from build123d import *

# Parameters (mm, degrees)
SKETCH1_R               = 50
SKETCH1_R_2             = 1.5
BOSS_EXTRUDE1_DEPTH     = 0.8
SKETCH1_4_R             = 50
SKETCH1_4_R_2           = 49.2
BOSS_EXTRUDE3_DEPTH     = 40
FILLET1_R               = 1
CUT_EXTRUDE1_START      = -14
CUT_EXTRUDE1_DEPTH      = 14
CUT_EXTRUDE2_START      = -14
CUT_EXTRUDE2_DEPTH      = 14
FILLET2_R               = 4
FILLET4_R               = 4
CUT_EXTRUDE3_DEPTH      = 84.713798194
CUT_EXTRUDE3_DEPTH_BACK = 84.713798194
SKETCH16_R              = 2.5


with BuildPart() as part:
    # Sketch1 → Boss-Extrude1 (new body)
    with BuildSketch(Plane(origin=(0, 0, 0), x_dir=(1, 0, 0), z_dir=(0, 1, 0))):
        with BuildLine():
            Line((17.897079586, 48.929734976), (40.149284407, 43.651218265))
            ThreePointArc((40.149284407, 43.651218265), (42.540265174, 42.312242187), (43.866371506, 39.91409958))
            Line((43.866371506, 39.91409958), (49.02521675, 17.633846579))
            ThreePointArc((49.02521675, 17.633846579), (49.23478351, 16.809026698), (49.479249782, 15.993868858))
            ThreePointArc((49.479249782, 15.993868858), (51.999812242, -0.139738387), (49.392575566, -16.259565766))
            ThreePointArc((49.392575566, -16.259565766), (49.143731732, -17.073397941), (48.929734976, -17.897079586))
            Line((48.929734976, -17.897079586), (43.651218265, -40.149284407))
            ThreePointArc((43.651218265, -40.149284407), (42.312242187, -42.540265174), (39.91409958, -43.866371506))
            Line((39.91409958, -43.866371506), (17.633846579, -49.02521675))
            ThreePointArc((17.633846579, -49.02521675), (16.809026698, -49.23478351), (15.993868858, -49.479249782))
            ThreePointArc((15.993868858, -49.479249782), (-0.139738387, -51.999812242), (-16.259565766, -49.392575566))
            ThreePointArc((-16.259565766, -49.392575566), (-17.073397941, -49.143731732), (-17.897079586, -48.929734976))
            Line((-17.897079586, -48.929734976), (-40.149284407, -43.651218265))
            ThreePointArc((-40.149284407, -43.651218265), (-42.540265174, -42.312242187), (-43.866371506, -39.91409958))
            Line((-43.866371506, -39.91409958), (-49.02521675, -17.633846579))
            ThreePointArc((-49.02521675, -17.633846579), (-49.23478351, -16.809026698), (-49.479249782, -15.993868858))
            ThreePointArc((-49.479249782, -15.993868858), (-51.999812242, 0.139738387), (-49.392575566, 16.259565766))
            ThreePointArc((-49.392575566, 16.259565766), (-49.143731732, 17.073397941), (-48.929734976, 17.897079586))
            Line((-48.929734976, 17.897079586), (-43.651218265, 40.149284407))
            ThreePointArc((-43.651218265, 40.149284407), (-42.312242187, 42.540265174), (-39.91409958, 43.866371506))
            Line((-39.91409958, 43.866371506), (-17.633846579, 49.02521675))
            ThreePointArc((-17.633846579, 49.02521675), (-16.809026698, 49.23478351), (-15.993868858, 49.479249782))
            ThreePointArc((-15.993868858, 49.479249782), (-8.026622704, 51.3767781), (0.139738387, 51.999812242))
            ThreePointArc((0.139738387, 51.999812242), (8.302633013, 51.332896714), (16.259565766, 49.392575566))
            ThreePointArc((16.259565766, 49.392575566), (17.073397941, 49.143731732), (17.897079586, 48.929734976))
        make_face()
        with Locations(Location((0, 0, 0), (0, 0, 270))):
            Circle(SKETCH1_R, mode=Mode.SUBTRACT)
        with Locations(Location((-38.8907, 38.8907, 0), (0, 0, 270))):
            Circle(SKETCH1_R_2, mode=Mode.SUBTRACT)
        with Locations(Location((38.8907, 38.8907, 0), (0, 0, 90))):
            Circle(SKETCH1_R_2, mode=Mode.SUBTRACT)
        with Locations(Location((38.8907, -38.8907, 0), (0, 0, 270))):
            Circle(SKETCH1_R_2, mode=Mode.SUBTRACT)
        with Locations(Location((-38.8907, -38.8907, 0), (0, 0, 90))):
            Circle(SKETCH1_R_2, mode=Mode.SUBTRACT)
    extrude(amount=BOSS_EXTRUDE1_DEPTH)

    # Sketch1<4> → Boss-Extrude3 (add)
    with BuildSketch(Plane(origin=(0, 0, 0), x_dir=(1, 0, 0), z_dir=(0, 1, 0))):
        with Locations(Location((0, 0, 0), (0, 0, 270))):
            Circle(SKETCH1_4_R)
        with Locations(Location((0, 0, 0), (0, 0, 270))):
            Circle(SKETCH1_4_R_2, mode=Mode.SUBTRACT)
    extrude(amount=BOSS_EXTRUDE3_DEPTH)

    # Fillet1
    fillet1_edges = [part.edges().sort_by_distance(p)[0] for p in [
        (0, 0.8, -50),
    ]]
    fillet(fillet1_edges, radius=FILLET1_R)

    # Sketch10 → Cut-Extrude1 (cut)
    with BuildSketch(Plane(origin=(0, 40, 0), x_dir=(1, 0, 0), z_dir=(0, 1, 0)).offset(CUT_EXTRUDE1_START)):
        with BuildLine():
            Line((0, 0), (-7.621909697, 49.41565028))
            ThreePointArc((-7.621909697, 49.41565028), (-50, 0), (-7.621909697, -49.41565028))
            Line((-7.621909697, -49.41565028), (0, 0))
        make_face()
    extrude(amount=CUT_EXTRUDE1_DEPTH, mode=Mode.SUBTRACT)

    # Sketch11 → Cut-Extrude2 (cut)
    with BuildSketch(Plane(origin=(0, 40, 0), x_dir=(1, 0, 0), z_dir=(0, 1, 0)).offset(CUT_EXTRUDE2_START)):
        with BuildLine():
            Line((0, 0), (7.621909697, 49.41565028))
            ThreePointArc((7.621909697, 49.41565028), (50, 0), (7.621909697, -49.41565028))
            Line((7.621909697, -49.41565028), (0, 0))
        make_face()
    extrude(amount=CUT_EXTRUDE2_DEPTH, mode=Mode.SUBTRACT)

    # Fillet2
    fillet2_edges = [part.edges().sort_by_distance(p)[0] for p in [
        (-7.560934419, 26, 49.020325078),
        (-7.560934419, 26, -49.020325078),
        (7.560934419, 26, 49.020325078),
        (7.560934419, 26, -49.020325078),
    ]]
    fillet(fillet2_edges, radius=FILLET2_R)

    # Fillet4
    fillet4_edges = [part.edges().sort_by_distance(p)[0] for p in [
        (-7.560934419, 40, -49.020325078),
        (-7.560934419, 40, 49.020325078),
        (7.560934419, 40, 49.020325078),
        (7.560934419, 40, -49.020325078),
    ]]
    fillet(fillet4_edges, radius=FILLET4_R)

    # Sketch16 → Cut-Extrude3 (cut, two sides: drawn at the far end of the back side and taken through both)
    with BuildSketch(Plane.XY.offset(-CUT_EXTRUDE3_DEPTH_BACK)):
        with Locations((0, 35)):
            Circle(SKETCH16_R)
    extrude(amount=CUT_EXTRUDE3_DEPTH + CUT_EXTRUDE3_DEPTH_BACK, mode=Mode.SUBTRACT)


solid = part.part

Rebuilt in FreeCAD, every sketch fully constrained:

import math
import FreeCAD as App
import Part
import Sketcher
from FreeCAD import Vector


def edges_at(feature, points):
    """Names of the edges that pass closest to the given points."""
    edges = feature.Shape.Edges
    near = lambda p: min(range(len(edges)), key=lambda i: edges[i].distToShape(Part.Vertex(*p))[0])
    return sorted({f"Edge{near(p) + 1}" for p in points})

doc = App.newDocument("Part")
params = doc.addObject("Spreadsheet::Sheet", "Params")
for row, (alias, value) in enumerate([
    ("sketch1_diameter", "3 mm"),
    ("sketch1_diameter2", "100 mm"),
    ("sketch1_radius", "20 mm"),
    ("sketch1_radius2", "52 mm"),
    ("sketch1_radius3", "5 mm"),
    ("pad1_length", "0.8 mm"),
    ("sketch2_diameter", "100 mm"),
    ("sketch2_diameter2", "98.4 mm"),
    ("pad2_length", "40 mm"),
    ("fillet_radius", "1 mm"),
    ("sketch3_radius", "50 mm"),
    ("pocket1_length", "14 mm"),
    ("sketch4_radius", "50 mm"),
    ("pocket2_length", "14 mm"),
    ("fillet2_radius", "4 mm"),
    ("fillet3_radius", "4 mm"),
    ("sketch5_diameter", "5 mm"),
], start=1):
    params.set(f"A{row}", alias)
    params.set(f"B{row}", "=" + value)
    params.setAlias(f"B{row}", alias)

body = doc.addObject("PartDesign::Body", "Body")

# Sketch on XZ plane
sketch1 = body.newObject("Sketcher::SketchObject", "Sketch")
sketch1.AttachmentSupport = (doc.getObject("XZ_Plane"), [""])
sketch1.MapMode = "FlatFace"
sketch1.addGeometry(Part.LineSegment(Vector(40.1, -43.7, 0), Vector(17.9, -48.9, 0)), False)
sketch1.addGeometry(Part.ArcOfCircle(Part.Circle(Vector(22.5, -68.4, 0), Vector(0, 0, 1), 20), math.radians(103.34), math.radians(108.22)), False)
sketch1.addGeometry(Part.ArcOfCircle(Part.Circle(Vector(0, 0, 0), Vector(0, 0, 1), 52), math.radians(-89.85), math.radians(-71.78)), False)
sketch1.addGeometry(Part.ArcOfCircle(Part.Circle(Vector(0, 0, 0), Vector(0, 0, 1), 52), math.radians(-107.91), math.radians(-89.85)), False)
sketch1.addGeometry(Part.ArcOfCircle(Part.Circle(Vector(-22.1, -68.5, 0), Vector(0, 0, 1), 20), math.radians(72.09), math.radians(76.96)), False)
sketch1.addGeometry(Part.LineSegment(Vector(-17.6, -49, 0), Vector(-39.9, -43.9, 0)), False)
sketch1.addGeometry(Part.ArcOfCircle(Part.Circle(Vector(-38.8, -39, 0), Vector(0, 0, 1), 5), math.radians(-167), math.radians(-103)), False)
sketch1.addGeometry(Part.LineSegment(Vector(-43.7, -40.1, 0), Vector(-48.9, -17.9, 0)), False)
sketch1.addGeometry(Part.ArcOfCircle(Part.Circle(Vector(-68.4, -22.5, 0), Vector(0, 0, 1), 20), math.radians(13.34), math.radians(18.22)), False)
sketch1.addGeometry(Part.ArcOfCircle(Part.Circle(Vector(0, 0, 0), Vector(0, 0, 1), 52), math.radians(162), math.radians(198)), False)
sketch1.addGeometry(Part.ArcOfCircle(Part.Circle(Vector(-68.5, 22.1, 0), Vector(0, 0, 1), 20), math.radians(-17.91), math.radians(-13.04)), False)
sketch1.addGeometry(Part.LineSegment(Vector(-49, 17.6, 0), Vector(-43.9, 39.9, 0)), False)
sketch1.addGeometry(Part.ArcOfCircle(Part.Circle(Vector(-39, 38.8, 0), Vector(0, 0, 1), 5), math.radians(103), math.radians(167)), False)
sketch1.addGeometry(Part.LineSegment(Vector(-40.1, 43.7, 0), Vector(-17.9, 48.9, 0)), False)
sketch1.addGeometry(Part.ArcOfCircle(Part.Circle(Vector(-22.5, 68.4, 0), Vector(0, 0, 1), 20), math.radians(-76.66), math.radians(-71.78)), False)
sketch1.addGeometry(Part.ArcOfCircle(Part.Circle(Vector(0, 0, 0), Vector(0, 0, 1), 52), math.radians(72), math.radians(108)), False)
sketch1.addGeometry(Part.ArcOfCircle(Part.Circle(Vector(22.1, 68.5, 0), Vector(0, 0, 1), 20), math.radians(-107.91), math.radians(-103.04)), False)
sketch1.addGeometry(Part.LineSegment(Vector(17.6, 49, 0), Vector(39.9, 43.9, 0)), False)
sketch1.addGeometry(Part.ArcOfCircle(Part.Circle(Vector(38.8, 39, 0), Vector(0, 0, 1), 5), math.radians(13), math.radians(77)), False)
sketch1.addGeometry(Part.LineSegment(Vector(43.7, 40.1, 0), Vector(48.9, 17.9, 0)), False)
sketch1.addGeometry(Part.ArcOfCircle(Part.Circle(Vector(68.4, 22.5, 0), Vector(0, 0, 1), 20), math.radians(-166.66), math.radians(-161.78)), False)
sketch1.addGeometry(Part.ArcOfCircle(Part.Circle(Vector(0, 0, 0), Vector(0, 0, 1), 52), math.radians(-18), math.radians(18)), False)
sketch1.addGeometry(Part.ArcOfCircle(Part.Circle(Vector(68.5, -22.1, 0), Vector(0, 0, 1), 20), math.radians(162.09), math.radians(166.96)), False)
sketch1.addGeometry(Part.LineSegment(Vector(49, -17.6, 0), Vector(43.9, -39.9, 0)), False)
sketch1.addGeometry(Part.ArcOfCircle(Part.Circle(Vector(39, -38.8, 0), Vector(0, 0, 1), 5), math.radians(-77), math.radians(-13)), False)
sketch1.addGeometry(Part.Circle(Vector(38.9, 38.9, 0), Vector(0, 0, 1), 1.5), False)
sketch1.addGeometry(Part.Circle(Vector(-38.9, 38.9, 0), Vector(0, 0, 1), 1.5), False)
sketch1.addGeometry(Part.Circle(Vector(38.9, -38.9, 0), Vector(0, 0, 1), 1.5), False)
sketch1.addGeometry(Part.Circle(Vector(0, 0, 0), Vector(0, 0, 1), 50), False)
sketch1.addGeometry(Part.Circle(Vector(-38.9, -38.9, 0), Vector(0, 0, 1), 1.5), False)
sketch1.addConstraint(Sketcher.Constraint("Tangent", 0, 2, 1, 1))
sketch1.addConstraint(Sketcher.Constraint("Tangent", 1, 2, 2, 2))
sketch1.addConstraint(Sketcher.Constraint("Tangent", 2, 1, 3, 2))
sketch1.addConstraint(Sketcher.Constraint("Tangent", 3, 1, 4, 1))
sketch1.addConstraint(Sketcher.Constraint("Tangent", 4, 2, 5, 1))
sketch1.addConstraint(Sketcher.Constraint("Tangent", 5, 2, 6, 2))
sketch1.addConstraint(Sketcher.Constraint("Tangent", 6, 1, 7, 1))
sketch1.addConstraint(Sketcher.Constraint("Tangent", 7, 2, 8, 1))
sketch1.addConstraint(Sketcher.Constraint("Tangent", 8, 2, 9, 2))
sketch1.addConstraint(Sketcher.Constraint("Tangent", 9, 1, 10, 1))
sketch1.addConstraint(Sketcher.Constraint("Tangent", 10, 2, 11, 1))
sketch1.addConstraint(Sketcher.Constraint("Tangent", 11, 2, 12, 2))
sketch1.addConstraint(Sketcher.Constraint("Tangent", 12, 1, 13, 1))
sketch1.addConstraint(Sketcher.Constraint("Tangent", 13, 2, 14, 1))
sketch1.addConstraint(Sketcher.Constraint("Tangent", 14, 2, 15, 2))
sketch1.addConstraint(Sketcher.Constraint("Tangent", 15, 1, 16, 1))
sketch1.addConstraint(Sketcher.Constraint("Tangent", 16, 2, 17, 1))
sketch1.addConstraint(Sketcher.Constraint("Tangent", 17, 2, 18, 2))
sketch1.addConstraint(Sketcher.Constraint("Tangent", 18, 1, 19, 1))
sketch1.addConstraint(Sketcher.Constraint("Tangent", 19, 2, 20, 1))
sketch1.addConstraint(Sketcher.Constraint("Tangent", 20, 2, 21, 2))
sketch1.addConstraint(Sketcher.Constraint("Tangent", 21, 1, 22, 1))
sketch1.addConstraint(Sketcher.Constraint("Tangent", 22, 2, 23, 1))
sketch1.addConstraint(Sketcher.Constraint("Tangent", 23, 2, 24, 2))
sketch1.addConstraint(Sketcher.Constraint("Tangent", 24, 1, 0, 1))
sketch1.addConstraint(Sketcher.Constraint("Coincident", 2, 3, -1, 1))
sketch1.addConstraint(Sketcher.Constraint("Coincident", 9, 3, -1, 1))
sketch1.addConstraint(Sketcher.Constraint("Coincident", 15, 3, -1, 1))
sketch1.addConstraint(Sketcher.Constraint("Coincident", 21, 3, -1, 1))
sketch1.addConstraint(Sketcher.Constraint("Coincident", 28, 3, -1, 1))
sketch1.addConstraint(Sketcher.Constraint("Equal", 2, 3))
sketch1.addConstraint(Sketcher.Constraint("Equal", 1, 4))
sketch1.addConstraint(Sketcher.Constraint("Equal", 4, 8))
sketch1.addConstraint(Sketcher.Constraint("Equal", 3, 9))
sketch1.addConstraint(Sketcher.Constraint("Equal", 8, 10))
sketch1.addConstraint(Sketcher.Constraint("Equal", 6, 12))
sketch1.addConstraint(Sketcher.Constraint("Equal", 10, 14))
sketch1.addConstraint(Sketcher.Constraint("Equal", 9, 15))
sketch1.addConstraint(Sketcher.Constraint("Equal", 14, 16))
sketch1.addConstraint(Sketcher.Constraint("Equal", 12, 18))
sketch1.addConstraint(Sketcher.Constraint("Equal", 16, 20))
sketch1.addConstraint(Sketcher.Constraint("Equal", 15, 21))
sketch1.addConstraint(Sketcher.Constraint("Equal", 20, 22))
sketch1.addConstraint(Sketcher.Constraint("Equal", 18, 24))
sketch1.addConstraint(Sketcher.Constraint("Equal", 25, 26))
sketch1.addConstraint(Sketcher.Constraint("Equal", 26, 27))
sketch1.addConstraint(Sketcher.Constraint("Equal", 27, 29))
sketch1.addConstraint(Sketcher.Constraint("Symmetric", 6, 3, 18, 3, -1, 1))
sketch1.addConstraint(Sketcher.Constraint("Symmetric", 12, 3, 24, 3, -1, 1))
sketch1.addConstraint(Sketcher.Constraint("Symmetric", 26, 3, 27, 3, -1, 1))
sketch1.addConstraint(Sketcher.Constraint("Symmetric", 25, 3, 29, 3, -1, 1))
sketch1.addConstraint(Sketcher.Constraint("Symmetric", 25, 3, 26, 3, -2))
sketch1.addConstraint(Sketcher.Constraint("Perpendicular", 0, 7))
sketch1.addConstraint(Sketcher.Constraint("Perpendicular", 5, 11))
sketch1.addConstraint(Sketcher.Constraint("Perpendicular", 7, 13))
sketch1.addConstraint(Sketcher.Constraint("Perpendicular", 11, 17))
sketch1.addConstraint(Sketcher.Constraint("Perpendicular", 13, 19))
sketch1.addConstraint(Sketcher.Constraint("Perpendicular", 17, 23))
sketch1.addConstraint(Sketcher.Constraint("Equal", 0, 5))
sketch1.addConstraint(Sketcher.Constraint("Equal", 5, 7))
sketch1.addConstraint(Sketcher.Constraint("Equal", 7, 11))
sketch1.addConstraint(Sketcher.Constraint("Diameter", 25, 3.0))
sketch1.addConstraint(Sketcher.Constraint("Diameter", 28, 100.0))
sketch1.addConstraint(Sketcher.Constraint("Radius", 1, 20.0))
sketch1.addConstraint(Sketcher.Constraint("Radius", 2, 52.0))
sketch1.addConstraint(Sketcher.Constraint("Radius", 6, 5.0))
sketch1.addConstraint(Sketcher.Constraint("DistanceY", 6, 3, 8, 3, 16.481998))
sketch1.addConstraint(Sketcher.Constraint("DistanceX", -1, 1, 25, 3, 38.8907))
sketch1.addConstraint(Sketcher.Constraint("DistanceY", -1, 1, 25, 3, 38.8907))
sketch1.addConstraint(Sketcher.Constraint("DistanceX", 5, 2, -1, 1, 39.9141))
sketch1.addConstraint(Sketcher.Constraint("DistanceX", 4, 3, 1, 3, 44.658602))
sketch1.addConstraint(Sketcher.Constraint("DistanceX", -1, 1, 2, 1, 0.139738))
sketch1.setExpression("Constraints[61]", "Params.sketch1_diameter")
sketch1.setExpression("Constraints[62]", "Params.sketch1_diameter2")
sketch1.setExpression("Constraints[63]", "Params.sketch1_radius")
sketch1.setExpression("Constraints[64]", "Params.sketch1_radius2")
sketch1.setExpression("Constraints[65]", "Params.sketch1_radius3")
pad1 = body.newObject("PartDesign::Pad", "Pad")
pad1.Profile = sketch1
pad1.setExpression("Length", "Params.pad1_length")
pad1.Reversed = True

# Sketch on XZ plane
sketch2 = body.newObject("Sketcher::SketchObject", "Sketch001")
sketch2.AttachmentSupport = (doc.getObject("XZ_Plane"), [""])
sketch2.MapMode = "FlatFace"
sketch2.addGeometry(Part.Circle(Vector(0, 0, 0), Vector(0, 0, 1), 50), False)
sketch2.addGeometry(Part.Circle(Vector(0, 0, 0), Vector(0, 0, 1), 49), False)
sketch2.addConstraint(Sketcher.Constraint("Coincident", 0, 3, -1, 1))
sketch2.addConstraint(Sketcher.Constraint("Coincident", 1, 3, -1, 1))
sketch2.addConstraint(Sketcher.Constraint("Diameter", 0, 100.0))
sketch2.addConstraint(Sketcher.Constraint("Diameter", 1, 98.4))
sketch2.setExpression("Constraints[2]", "Params.sketch2_diameter")
sketch2.setExpression("Constraints[3]", "Params.sketch2_diameter2")
pad2 = body.newObject("PartDesign::Pad", "Pad001")
pad2.Profile = sketch2
pad2.setExpression("Length", "Params.pad2_length")
pad2.Reversed = True
doc.recompute()

fillet = body.newObject("PartDesign::Fillet", "Fillet")
fillet.Base = (pad2, edges_at(pad2, [(0, 0.8, -50)]))
fillet.setExpression("Radius", "Params.fillet_radius")

# Sketch on XZ plane
sketch3 = body.newObject("Sketcher::SketchObject", "Sketch002")
sketch3.AttachmentSupport = (doc.getObject("XZ_Plane"), [""])
sketch3.MapMode = "FlatFace"
sketch3.AttachmentOffset = App.Placement(Vector(0, 0, -26), App.Rotation())
sketch3.addGeometry(Part.LineSegment(Vector(0, 0, 0), Vector(-8, -49, 0)), False)
sketch3.addGeometry(Part.ArcOfCircle(Part.Circle(Vector(0, 0, 0), Vector(0, 0, 1), 50), math.radians(99), math.radians(261)), False)
sketch3.addGeometry(Part.LineSegment(Vector(-8, 49, 0), Vector(0, 0, 0)), False)
sketch3.addConstraint(Sketcher.Constraint("Coincident", 0, 2, 1, 2))
sketch3.addConstraint(Sketcher.Constraint("Coincident", 1, 1, 2, 1))
sketch3.addConstraint(Sketcher.Constraint("Coincident", 2, 2, 0, 1))
sketch3.addConstraint(Sketcher.Constraint("Coincident", 1, 3, -1, 1))
sketch3.addConstraint(Sketcher.Constraint("Coincident", 2, 2, -1, 1))
sketch3.addConstraint(Sketcher.Constraint("Vertical", 0, 2, 1, 1))
sketch3.addConstraint(Sketcher.Constraint("Radius", 1, 50.0))
sketch3.addConstraint(Sketcher.Constraint("DistanceY", 0, 2, 1, 1, 98.831301))
sketch3.setExpression("Constraints[6]", "Params.sketch3_radius")
pocket1 = body.newObject("PartDesign::Pocket", "Pocket")
pocket1.Profile = sketch3
pocket1.setExpression("Length", "Params.pocket1_length")

# Sketch on XZ plane
sketch4 = body.newObject("Sketcher::SketchObject", "Sketch003")
sketch4.AttachmentSupport = (doc.getObject("XZ_Plane"), [""])
sketch4.MapMode = "FlatFace"
sketch4.AttachmentOffset = App.Placement(Vector(0, 0, -26), App.Rotation())
sketch4.addGeometry(Part.LineSegment(Vector(8, -49, 0), Vector(0, 0, 0)), False)
sketch4.addGeometry(Part.LineSegment(Vector(0, 0, 0), Vector(8, 49, 0)), False)
sketch4.addGeometry(Part.ArcOfCircle(Part.Circle(Vector(0, 0, 0), Vector(0, 0, 1), 50), math.radians(-81), math.radians(81)), False)
sketch4.addConstraint(Sketcher.Constraint("Coincident", 0, 2, 1, 1))
sketch4.addConstraint(Sketcher.Constraint("Coincident", 1, 2, 2, 2))
sketch4.addConstraint(Sketcher.Constraint("Coincident", 2, 1, 0, 1))
sketch4.addConstraint(Sketcher.Constraint("Coincident", 2, 3, -1, 1))
sketch4.addConstraint(Sketcher.Constraint("Coincident", 0, 2, -1, 1))
sketch4.addConstraint(Sketcher.Constraint("Vertical", 1, 2, 2, 1))
sketch4.addConstraint(Sketcher.Constraint("Radius", 2, 50.0))
sketch4.addConstraint(Sketcher.Constraint("DistanceY", 2, 1, 1, 2, 98.831301))
sketch4.setExpression("Constraints[6]", "Params.sketch4_radius")
pocket2 = body.newObject("PartDesign::Pocket", "Pocket001")
pocket2.Profile = sketch4
pocket2.setExpression("Length", "Params.pocket2_length")
doc.recompute()

fillet2 = body.newObject("PartDesign::Fillet", "Fillet001")
fillet2.Base = (pocket2, edges_at(pocket2, [
    (-7.561, 26, 49.02),
    (-7.561, 26, -49.02),
    (7.561, 26, 49.02),
    (7.561, 26, -49.02),
]))
fillet2.setExpression("Radius", "Params.fillet2_radius")
doc.recompute()

fillet3 = body.newObject("PartDesign::Fillet", "Fillet002")
fillet3.Base = (fillet2, edges_at(fillet2, [
    (-7.561, 40, -49.02),
    (-7.561, 40, 49.02),
    (7.561, 40, 49.02),
    (7.561, 40, -49.02),
]))
fillet3.setExpression("Radius", "Params.fillet3_radius")

# Sketch on XY plane
sketch5 = body.newObject("Sketcher::SketchObject", "Sketch004")
sketch5.AttachmentSupport = (doc.getObject("XY_Plane"), [""])
sketch5.MapMode = "FlatFace"
sketch5.addGeometry(Part.Circle(Vector(0, 35, 0), Vector(0, 0, 1), 2.5), False)
sketch5.addConstraint(Sketcher.Constraint("PointOnObject", 0, 3, -2))
sketch5.addConstraint(Sketcher.Constraint("Diameter", 0, 5.0))
sketch5.addConstraint(Sketcher.Constraint("DistanceY", -1, 1, 0, 3, 35.0))
sketch5.setExpression("Constraints[1]", "Params.sketch5_diameter")
pocket3 = body.newObject("PartDesign::Pocket", "Pocket002")
pocket3.Profile = sketch5
pocket3.Type = "ThroughAll"
pocket3.Midplane = True

doc.recompute()
